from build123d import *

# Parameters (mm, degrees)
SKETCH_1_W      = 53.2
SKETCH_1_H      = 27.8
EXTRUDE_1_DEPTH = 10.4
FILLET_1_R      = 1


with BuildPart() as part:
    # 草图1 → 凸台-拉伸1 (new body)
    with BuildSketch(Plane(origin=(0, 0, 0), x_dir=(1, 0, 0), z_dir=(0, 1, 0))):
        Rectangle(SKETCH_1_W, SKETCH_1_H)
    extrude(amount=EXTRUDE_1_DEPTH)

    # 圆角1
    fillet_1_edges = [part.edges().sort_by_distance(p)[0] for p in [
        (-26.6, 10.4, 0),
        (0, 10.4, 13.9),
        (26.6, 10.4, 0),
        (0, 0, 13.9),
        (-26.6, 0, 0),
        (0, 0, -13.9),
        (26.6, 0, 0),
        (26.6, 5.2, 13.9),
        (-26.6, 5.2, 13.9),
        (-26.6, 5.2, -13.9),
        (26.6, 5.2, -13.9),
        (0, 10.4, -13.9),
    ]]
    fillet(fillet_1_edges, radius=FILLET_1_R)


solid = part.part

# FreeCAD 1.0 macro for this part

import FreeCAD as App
import Part
import Sketcher
from FreeCAD import Vector


def add_polygon(sketch, points):
    """Adds a closed chain of lines whose ends are joined by coincident constraints."""
    first, n = sketch.GeometryCount, len(points)
    for a, b in zip(points, points[1:] + points[:1]):
        sketch.addGeometry(Part.LineSegment(App.Vector(*a, 0), App.Vector(*b, 0)), False)
    for i in range(n):
        sketch.addConstraint(Sketcher.Constraint("Coincident", first + i, 2, first + (i + 1) % n, 1))

doc = App.newDocument("Part")
params = doc.addObject("Spreadsheet::Sheet", "Params")
for row, (alias, value) in enumerate([
    ("sketch1_width", "53.2 mm"),
    ("sketch1_height", "27.8 mm"),
    ("pad1_length", "10.4 mm"),
    ("fillet_radius", "1 mm"),
], start=1):
    params.set(f"A{row}", alias)
    params.set(f"B{row}", "=" + value)
    params.setAlias(f"B{row}", alias)

body = doc.addObject("PartDesign::Body", "Body")

# Sketch on XZ plane
sketch1 = body.newObject("Sketcher::SketchObject", "Sketch")
sketch1.AttachmentSupport = (doc.getObject("XZ_Plane"), [""])
sketch1.MapMode = "FlatFace"
add_polygon(sketch1, [(-27, -14), (-27, 14), (27, 14), (27, -14)])  # lines 0-3
sketch1.addConstraint([
    Sketcher.Constraint("Vertical", 0),
    Sketcher.Constraint("Horizontal", 1),
    Sketcher.Constraint("Vertical", 2),
    Sketcher.Constraint("Horizontal", 3),
    Sketcher.Constraint("Symmetric", 0, 2, 2, 2, -1, 1),
    Sketcher.Constraint("DistanceX", 1, 1, 1, 2, 53.2),
    Sketcher.Constraint("DistanceY", 0, 1, 0, 2, 27.8),
])
sketch1.setExpression("Constraints[9]", "Params.sketch1_width")
sketch1.setExpression("Constraints[10]", "Params.sketch1_height")
pad1 = body.newObject("PartDesign::Pad", "Pad")
pad1.Profile = sketch1
pad1.setExpression("Length", "Params.pad1_length")
pad1.Reversed = True
doc.recompute()

fillet = body.newObject("PartDesign::Fillet", "Fillet")
fillet.Base = (pad1, ["Edge1"])
fillet.UseAllEdges = True
fillet.setExpression("Radius", "Params.fillet_radius")

doc.recompute()
